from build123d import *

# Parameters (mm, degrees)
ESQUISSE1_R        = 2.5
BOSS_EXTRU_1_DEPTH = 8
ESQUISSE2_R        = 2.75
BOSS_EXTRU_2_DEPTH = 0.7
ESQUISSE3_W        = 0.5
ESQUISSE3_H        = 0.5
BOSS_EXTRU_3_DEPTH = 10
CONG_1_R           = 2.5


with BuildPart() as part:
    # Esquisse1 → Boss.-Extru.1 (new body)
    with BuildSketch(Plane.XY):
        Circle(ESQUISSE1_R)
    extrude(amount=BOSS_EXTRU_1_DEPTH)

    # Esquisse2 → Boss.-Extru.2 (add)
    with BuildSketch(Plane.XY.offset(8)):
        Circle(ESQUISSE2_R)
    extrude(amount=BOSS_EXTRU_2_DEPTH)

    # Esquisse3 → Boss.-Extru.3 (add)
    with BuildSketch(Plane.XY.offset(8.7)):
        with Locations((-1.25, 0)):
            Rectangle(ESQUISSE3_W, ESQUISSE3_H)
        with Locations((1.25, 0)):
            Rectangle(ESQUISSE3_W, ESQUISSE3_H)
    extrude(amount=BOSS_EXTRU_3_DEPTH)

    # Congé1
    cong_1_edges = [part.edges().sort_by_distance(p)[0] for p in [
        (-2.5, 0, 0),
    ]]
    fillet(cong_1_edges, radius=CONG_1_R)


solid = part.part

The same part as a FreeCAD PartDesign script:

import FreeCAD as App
import Part
import Sketcher

V = App.Vector
Q = App.Units.Quantity


def edges_at(feature, points):
    """Names of the edges that pass closest to the given points."""
    edges = feature.Shape.Edges
    near = lambda p: min(range(len(edges)), key=lambda i: edges[i].distToShape(Part.Vertex(*p))[0])
    return sorted({f"Edge{near(p) + 1}" for p in points})


def add_polygon(sketch, points):
    """Adds a closed chain of lines whose ends are joined by coincident constraints."""
    first, n = sketch.GeometryCount, len(points)
    for a, b in zip(points, points[1:] + points[:1]):
        sketch.addGeometry(Part.LineSegment(App.Vector(*a, 0), App.Vector(*b, 0)), False)
    for i in range(n):
        sketch.addConstraint(Sketcher.Constraint("Coincident", first + i, 2, first + (i + 1) % n, 1))

doc = App.newDocument("Part")
body = doc.addObject("PartDesign::Body", "Body")

sketch1 = body.newObject("Sketcher::SketchObject", "Sketch")
sketch1.AttachmentSupport = (doc.getObject("XY_Plane"), [""])
sketch1.MapMode = "FlatFace"
sketch1.addGeometry(Part.Circle(V(0, 0, 0), V(0, 0, 1), 2.5), False)
sketch1.addConstraint(Sketcher.Constraint("Coincident", 0, 3, -1, 1))
sketch1.addConstraint(Sketcher.Constraint("Diameter", 0, Q("5 mm")))
pad1 = body.newObject("PartDesign::Pad", "Pad")
pad1.Profile = sketch1
pad1.Length = 8

sketch2 = body.newObject("Sketcher::SketchObject", "Sketch001")
sketch2.AttachmentSupport = (doc.getObject("XY_Plane"), [""])
sketch2.MapMode = "FlatFace"
sketch2.AttachmentOffset = App.Placement(V(0, 0, 8), App.Rotation())
sketch2.addGeometry(Part.Circle(V(0, 0, 0), V(0, 0, 1), 2.75), False)
sketch2.addConstraint(Sketcher.Constraint("Coincident", 0, 3, -1, 1))
sketch2.addConstraint(Sketcher.Constraint("Diameter", 0, Q("5.5 mm")))
pad2 = body.newObject("PartDesign::Pad", "Pad001")
pad2.Profile = sketch2
pad2.Length = 0.7

sketch3 = body.newObject("Sketcher::SketchObject", "Sketch002")
sketch3.AttachmentSupport = (doc.getObject("XY_Plane"), [""])
sketch3.MapMode = "FlatFace"
sketch3.AttachmentOffset = App.Placement(V(0, 0, 8.7), App.Rotation())
add_polygon(sketch3, [(-1.5, 0.25), (-1.5, -0.25), (-1, -0.25), (-1, 0.25)])
add_polygon(sketch3, [(1, 0.25), (1, -0.25), (1.5, -0.25), (1.5, 0.25)])
sketch3.addConstraint(Sketcher.Constraint("Vertical", 0))
sketch3.addConstraint(Sketcher.Constraint("Horizontal", 1))
sketch3.addConstraint(Sketcher.Constraint("Vertical", 2))
sketch3.addConstraint(Sketcher.Constraint("Horizontal", 3))
sketch3.addConstraint(Sketcher.Constraint("Vertical", 4))
sketch3.addConstraint(Sketcher.Constraint("Horizontal", 5))
sketch3.addConstraint(Sketcher.Constraint("Vertical", 6))
sketch3.addConstraint(Sketcher.Constraint("Horizontal", 7))
sketch3.addConstraint(Sketcher.Constraint("Symmetric", 2, 2, 4, 2, -1, 1))
sketch3.addConstraint(Sketcher.Constraint("Symmetric", 0, 2, 6, 2, -1, 1))
sketch3.addConstraint(Sketcher.Constraint("Horizontal", 1, 2, 4, 2))
sketch3.addConstraint(Sketcher.Constraint("Equal", 7, 0))
sketch3.addConstraint(Sketcher.Constraint("DistanceX", 1, 1, 1, 2, Q("0.5 mm")))
sketch3.addConstraint(Sketcher.Constraint("DistanceX", 1, 2, -1, 1, Q("1 mm")))
pad3 = body.newObject("PartDesign::Pad", "Pad002")
pad3.Profile = sketch3
pad3.Length = 10
doc.recompute()

fillet = body.newObject("PartDesign::Fillet", "Fillet")
fillet.Base = (pad3, edges_at(pad3, [(-2.5, 0, 0)]))
fillet.Radius = 2.5

doc.recompute()
